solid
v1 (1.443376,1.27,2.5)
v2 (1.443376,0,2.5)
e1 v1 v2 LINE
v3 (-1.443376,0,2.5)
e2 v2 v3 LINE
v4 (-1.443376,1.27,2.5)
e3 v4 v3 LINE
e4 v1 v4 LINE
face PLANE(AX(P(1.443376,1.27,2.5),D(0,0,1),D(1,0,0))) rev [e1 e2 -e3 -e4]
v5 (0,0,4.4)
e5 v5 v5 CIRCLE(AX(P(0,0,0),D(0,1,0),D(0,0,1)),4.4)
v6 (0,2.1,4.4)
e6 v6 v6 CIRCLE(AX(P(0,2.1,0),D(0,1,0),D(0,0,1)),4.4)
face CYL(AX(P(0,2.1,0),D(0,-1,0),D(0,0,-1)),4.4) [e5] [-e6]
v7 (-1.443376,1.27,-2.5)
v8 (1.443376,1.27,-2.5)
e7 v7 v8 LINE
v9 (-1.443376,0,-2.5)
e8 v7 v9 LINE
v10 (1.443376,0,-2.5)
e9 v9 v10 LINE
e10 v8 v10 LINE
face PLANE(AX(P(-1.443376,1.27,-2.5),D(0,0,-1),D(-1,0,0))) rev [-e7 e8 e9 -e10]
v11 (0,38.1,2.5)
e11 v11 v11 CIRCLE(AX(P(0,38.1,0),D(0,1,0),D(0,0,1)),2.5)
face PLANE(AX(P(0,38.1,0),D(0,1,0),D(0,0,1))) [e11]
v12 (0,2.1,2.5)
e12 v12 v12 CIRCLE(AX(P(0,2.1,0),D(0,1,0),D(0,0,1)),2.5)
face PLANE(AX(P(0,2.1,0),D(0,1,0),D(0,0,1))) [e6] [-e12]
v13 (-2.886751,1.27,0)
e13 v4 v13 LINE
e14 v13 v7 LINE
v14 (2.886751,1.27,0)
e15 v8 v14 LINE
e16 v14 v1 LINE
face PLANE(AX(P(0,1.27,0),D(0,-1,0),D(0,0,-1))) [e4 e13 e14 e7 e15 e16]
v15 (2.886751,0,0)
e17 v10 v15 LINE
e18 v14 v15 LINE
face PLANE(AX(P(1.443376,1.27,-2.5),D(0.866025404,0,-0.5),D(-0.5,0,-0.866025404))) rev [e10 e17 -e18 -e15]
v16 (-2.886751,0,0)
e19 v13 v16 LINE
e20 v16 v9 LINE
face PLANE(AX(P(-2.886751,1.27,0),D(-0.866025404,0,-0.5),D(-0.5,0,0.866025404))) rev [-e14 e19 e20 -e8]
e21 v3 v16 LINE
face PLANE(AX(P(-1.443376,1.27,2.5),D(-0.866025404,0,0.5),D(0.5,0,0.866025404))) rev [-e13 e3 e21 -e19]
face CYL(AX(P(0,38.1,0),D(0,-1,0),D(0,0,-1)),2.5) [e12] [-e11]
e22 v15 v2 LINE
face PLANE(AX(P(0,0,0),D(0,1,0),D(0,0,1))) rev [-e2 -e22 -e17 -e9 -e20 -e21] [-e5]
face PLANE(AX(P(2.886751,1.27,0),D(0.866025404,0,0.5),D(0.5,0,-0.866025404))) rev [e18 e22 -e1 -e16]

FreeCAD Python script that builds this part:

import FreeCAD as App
import Part
import Sketcher
from FreeCAD import Vector
Q = App.Units.Quantity


def add_polygon(sketch, points):
    """Adds a closed chain of lines whose ends are joined by coincident constraints."""
    first, n = sketch.GeometryCount, len(points)
    for a, b in zip(points, points[1:] + points[:1]):
        sketch.addGeometry(Part.LineSegment(App.Vector(*a, 0), App.Vector(*b, 0)), False)
    for i in range(n):
        sketch.addConstraint(Sketcher.Constraint("Coincident", first + i, 2, first + (i + 1) % n, 1))

doc = App.newDocument("Part")
body = doc.addObject("PartDesign::Body", "Body")

sketch1 = body.newObject("Sketcher::SketchObject", "Sketch")
sketch1.AttachmentSupport = (doc.getObject("XZ_Plane"), [""])
sketch1.MapMode = "FlatFace"
sketch1.addGeometry(Part.Circle(Vector(0, 0, 0), Vector(0, 0, 1), 4.4), False)
sketch1.addConstraint([
    Sketcher.Constraint("Coincident", 0, 3, -1, 1),
    Sketcher.Constraint("Diameter", 0, Q("8.8 mm")),
])
pad1 = body.newObject("PartDesign::Pad", "Pad")
pad1.Profile = sketch1
pad1.Length = 2.1
pad1.Reversed = True

sketch2 = body.newObject("Sketcher::SketchObject", "Sketch001")
sketch2.AttachmentSupport = (doc.getObject("XZ_Plane"), [""])
sketch2.MapMode = "FlatFace"
add_polygon(sketch2, [(2.886751, 0), (1.443376, 2.5), (-1.443376, 2.5), (-2.886751, 0), (-1.443376, -2.5), (1.443376, -2.5)])
sketch2.addConstraint([
    Sketcher.Constraint("Horizontal", 1),
    Sketcher.Constraint("Horizontal", 4),
    Sketcher.Constraint("Symmetric", 0, 2, 3, 2, -1, 1),
    Sketcher.Constraint("Symmetric", 2, 2, 5, 2, -1, 1),
    Sketcher.Constraint("PointOnObject", 2, 2, -1),
    Sketcher.Constraint("Parallel", 2, 5),
    Sketcher.Constraint("Vertical", 1, 2, 3, 2),
    Sketcher.Constraint("Angle", 0, Q("120 deg")),
    Sketcher.Constraint("DistanceY", 3, 2, 1, 2, Q("5 mm")),
    Sketcher.Constraint("DistanceX", 1, 2, 1, 1, Q("2.886751 mm")),
])
pocket1 = body.newObject("PartDesign::Pocket", "Pocket")
pocket1.Profile = sketch2
pocket1.Length = 1.27

sketch3 = body.newObject("Sketcher::SketchObject", "Sketch002")
sketch3.AttachmentSupport = (doc.getObject("XZ_Plane"), [""])
sketch3.MapMode = "FlatFace"
sketch3.AttachmentOffset = App.Placement(Vector(0, 0, -2.1), App.Rotation())
sketch3.addGeometry(Part.Circle(Vector(0, 0, 0), Vector(0, 0, 1), 2.5), False)
sketch3.addConstraint([
    Sketcher.Constraint("Coincident", 0, 3, -1, 1),
    Sketcher.Constraint("Diameter", 0, Q("5 mm")),
])
pad2 = body.newObject("PartDesign::Pad", "Pad001")
pad2.Profile = sketch3
pad2.Length = 36
pad2.Reversed = True

doc.recompute()
